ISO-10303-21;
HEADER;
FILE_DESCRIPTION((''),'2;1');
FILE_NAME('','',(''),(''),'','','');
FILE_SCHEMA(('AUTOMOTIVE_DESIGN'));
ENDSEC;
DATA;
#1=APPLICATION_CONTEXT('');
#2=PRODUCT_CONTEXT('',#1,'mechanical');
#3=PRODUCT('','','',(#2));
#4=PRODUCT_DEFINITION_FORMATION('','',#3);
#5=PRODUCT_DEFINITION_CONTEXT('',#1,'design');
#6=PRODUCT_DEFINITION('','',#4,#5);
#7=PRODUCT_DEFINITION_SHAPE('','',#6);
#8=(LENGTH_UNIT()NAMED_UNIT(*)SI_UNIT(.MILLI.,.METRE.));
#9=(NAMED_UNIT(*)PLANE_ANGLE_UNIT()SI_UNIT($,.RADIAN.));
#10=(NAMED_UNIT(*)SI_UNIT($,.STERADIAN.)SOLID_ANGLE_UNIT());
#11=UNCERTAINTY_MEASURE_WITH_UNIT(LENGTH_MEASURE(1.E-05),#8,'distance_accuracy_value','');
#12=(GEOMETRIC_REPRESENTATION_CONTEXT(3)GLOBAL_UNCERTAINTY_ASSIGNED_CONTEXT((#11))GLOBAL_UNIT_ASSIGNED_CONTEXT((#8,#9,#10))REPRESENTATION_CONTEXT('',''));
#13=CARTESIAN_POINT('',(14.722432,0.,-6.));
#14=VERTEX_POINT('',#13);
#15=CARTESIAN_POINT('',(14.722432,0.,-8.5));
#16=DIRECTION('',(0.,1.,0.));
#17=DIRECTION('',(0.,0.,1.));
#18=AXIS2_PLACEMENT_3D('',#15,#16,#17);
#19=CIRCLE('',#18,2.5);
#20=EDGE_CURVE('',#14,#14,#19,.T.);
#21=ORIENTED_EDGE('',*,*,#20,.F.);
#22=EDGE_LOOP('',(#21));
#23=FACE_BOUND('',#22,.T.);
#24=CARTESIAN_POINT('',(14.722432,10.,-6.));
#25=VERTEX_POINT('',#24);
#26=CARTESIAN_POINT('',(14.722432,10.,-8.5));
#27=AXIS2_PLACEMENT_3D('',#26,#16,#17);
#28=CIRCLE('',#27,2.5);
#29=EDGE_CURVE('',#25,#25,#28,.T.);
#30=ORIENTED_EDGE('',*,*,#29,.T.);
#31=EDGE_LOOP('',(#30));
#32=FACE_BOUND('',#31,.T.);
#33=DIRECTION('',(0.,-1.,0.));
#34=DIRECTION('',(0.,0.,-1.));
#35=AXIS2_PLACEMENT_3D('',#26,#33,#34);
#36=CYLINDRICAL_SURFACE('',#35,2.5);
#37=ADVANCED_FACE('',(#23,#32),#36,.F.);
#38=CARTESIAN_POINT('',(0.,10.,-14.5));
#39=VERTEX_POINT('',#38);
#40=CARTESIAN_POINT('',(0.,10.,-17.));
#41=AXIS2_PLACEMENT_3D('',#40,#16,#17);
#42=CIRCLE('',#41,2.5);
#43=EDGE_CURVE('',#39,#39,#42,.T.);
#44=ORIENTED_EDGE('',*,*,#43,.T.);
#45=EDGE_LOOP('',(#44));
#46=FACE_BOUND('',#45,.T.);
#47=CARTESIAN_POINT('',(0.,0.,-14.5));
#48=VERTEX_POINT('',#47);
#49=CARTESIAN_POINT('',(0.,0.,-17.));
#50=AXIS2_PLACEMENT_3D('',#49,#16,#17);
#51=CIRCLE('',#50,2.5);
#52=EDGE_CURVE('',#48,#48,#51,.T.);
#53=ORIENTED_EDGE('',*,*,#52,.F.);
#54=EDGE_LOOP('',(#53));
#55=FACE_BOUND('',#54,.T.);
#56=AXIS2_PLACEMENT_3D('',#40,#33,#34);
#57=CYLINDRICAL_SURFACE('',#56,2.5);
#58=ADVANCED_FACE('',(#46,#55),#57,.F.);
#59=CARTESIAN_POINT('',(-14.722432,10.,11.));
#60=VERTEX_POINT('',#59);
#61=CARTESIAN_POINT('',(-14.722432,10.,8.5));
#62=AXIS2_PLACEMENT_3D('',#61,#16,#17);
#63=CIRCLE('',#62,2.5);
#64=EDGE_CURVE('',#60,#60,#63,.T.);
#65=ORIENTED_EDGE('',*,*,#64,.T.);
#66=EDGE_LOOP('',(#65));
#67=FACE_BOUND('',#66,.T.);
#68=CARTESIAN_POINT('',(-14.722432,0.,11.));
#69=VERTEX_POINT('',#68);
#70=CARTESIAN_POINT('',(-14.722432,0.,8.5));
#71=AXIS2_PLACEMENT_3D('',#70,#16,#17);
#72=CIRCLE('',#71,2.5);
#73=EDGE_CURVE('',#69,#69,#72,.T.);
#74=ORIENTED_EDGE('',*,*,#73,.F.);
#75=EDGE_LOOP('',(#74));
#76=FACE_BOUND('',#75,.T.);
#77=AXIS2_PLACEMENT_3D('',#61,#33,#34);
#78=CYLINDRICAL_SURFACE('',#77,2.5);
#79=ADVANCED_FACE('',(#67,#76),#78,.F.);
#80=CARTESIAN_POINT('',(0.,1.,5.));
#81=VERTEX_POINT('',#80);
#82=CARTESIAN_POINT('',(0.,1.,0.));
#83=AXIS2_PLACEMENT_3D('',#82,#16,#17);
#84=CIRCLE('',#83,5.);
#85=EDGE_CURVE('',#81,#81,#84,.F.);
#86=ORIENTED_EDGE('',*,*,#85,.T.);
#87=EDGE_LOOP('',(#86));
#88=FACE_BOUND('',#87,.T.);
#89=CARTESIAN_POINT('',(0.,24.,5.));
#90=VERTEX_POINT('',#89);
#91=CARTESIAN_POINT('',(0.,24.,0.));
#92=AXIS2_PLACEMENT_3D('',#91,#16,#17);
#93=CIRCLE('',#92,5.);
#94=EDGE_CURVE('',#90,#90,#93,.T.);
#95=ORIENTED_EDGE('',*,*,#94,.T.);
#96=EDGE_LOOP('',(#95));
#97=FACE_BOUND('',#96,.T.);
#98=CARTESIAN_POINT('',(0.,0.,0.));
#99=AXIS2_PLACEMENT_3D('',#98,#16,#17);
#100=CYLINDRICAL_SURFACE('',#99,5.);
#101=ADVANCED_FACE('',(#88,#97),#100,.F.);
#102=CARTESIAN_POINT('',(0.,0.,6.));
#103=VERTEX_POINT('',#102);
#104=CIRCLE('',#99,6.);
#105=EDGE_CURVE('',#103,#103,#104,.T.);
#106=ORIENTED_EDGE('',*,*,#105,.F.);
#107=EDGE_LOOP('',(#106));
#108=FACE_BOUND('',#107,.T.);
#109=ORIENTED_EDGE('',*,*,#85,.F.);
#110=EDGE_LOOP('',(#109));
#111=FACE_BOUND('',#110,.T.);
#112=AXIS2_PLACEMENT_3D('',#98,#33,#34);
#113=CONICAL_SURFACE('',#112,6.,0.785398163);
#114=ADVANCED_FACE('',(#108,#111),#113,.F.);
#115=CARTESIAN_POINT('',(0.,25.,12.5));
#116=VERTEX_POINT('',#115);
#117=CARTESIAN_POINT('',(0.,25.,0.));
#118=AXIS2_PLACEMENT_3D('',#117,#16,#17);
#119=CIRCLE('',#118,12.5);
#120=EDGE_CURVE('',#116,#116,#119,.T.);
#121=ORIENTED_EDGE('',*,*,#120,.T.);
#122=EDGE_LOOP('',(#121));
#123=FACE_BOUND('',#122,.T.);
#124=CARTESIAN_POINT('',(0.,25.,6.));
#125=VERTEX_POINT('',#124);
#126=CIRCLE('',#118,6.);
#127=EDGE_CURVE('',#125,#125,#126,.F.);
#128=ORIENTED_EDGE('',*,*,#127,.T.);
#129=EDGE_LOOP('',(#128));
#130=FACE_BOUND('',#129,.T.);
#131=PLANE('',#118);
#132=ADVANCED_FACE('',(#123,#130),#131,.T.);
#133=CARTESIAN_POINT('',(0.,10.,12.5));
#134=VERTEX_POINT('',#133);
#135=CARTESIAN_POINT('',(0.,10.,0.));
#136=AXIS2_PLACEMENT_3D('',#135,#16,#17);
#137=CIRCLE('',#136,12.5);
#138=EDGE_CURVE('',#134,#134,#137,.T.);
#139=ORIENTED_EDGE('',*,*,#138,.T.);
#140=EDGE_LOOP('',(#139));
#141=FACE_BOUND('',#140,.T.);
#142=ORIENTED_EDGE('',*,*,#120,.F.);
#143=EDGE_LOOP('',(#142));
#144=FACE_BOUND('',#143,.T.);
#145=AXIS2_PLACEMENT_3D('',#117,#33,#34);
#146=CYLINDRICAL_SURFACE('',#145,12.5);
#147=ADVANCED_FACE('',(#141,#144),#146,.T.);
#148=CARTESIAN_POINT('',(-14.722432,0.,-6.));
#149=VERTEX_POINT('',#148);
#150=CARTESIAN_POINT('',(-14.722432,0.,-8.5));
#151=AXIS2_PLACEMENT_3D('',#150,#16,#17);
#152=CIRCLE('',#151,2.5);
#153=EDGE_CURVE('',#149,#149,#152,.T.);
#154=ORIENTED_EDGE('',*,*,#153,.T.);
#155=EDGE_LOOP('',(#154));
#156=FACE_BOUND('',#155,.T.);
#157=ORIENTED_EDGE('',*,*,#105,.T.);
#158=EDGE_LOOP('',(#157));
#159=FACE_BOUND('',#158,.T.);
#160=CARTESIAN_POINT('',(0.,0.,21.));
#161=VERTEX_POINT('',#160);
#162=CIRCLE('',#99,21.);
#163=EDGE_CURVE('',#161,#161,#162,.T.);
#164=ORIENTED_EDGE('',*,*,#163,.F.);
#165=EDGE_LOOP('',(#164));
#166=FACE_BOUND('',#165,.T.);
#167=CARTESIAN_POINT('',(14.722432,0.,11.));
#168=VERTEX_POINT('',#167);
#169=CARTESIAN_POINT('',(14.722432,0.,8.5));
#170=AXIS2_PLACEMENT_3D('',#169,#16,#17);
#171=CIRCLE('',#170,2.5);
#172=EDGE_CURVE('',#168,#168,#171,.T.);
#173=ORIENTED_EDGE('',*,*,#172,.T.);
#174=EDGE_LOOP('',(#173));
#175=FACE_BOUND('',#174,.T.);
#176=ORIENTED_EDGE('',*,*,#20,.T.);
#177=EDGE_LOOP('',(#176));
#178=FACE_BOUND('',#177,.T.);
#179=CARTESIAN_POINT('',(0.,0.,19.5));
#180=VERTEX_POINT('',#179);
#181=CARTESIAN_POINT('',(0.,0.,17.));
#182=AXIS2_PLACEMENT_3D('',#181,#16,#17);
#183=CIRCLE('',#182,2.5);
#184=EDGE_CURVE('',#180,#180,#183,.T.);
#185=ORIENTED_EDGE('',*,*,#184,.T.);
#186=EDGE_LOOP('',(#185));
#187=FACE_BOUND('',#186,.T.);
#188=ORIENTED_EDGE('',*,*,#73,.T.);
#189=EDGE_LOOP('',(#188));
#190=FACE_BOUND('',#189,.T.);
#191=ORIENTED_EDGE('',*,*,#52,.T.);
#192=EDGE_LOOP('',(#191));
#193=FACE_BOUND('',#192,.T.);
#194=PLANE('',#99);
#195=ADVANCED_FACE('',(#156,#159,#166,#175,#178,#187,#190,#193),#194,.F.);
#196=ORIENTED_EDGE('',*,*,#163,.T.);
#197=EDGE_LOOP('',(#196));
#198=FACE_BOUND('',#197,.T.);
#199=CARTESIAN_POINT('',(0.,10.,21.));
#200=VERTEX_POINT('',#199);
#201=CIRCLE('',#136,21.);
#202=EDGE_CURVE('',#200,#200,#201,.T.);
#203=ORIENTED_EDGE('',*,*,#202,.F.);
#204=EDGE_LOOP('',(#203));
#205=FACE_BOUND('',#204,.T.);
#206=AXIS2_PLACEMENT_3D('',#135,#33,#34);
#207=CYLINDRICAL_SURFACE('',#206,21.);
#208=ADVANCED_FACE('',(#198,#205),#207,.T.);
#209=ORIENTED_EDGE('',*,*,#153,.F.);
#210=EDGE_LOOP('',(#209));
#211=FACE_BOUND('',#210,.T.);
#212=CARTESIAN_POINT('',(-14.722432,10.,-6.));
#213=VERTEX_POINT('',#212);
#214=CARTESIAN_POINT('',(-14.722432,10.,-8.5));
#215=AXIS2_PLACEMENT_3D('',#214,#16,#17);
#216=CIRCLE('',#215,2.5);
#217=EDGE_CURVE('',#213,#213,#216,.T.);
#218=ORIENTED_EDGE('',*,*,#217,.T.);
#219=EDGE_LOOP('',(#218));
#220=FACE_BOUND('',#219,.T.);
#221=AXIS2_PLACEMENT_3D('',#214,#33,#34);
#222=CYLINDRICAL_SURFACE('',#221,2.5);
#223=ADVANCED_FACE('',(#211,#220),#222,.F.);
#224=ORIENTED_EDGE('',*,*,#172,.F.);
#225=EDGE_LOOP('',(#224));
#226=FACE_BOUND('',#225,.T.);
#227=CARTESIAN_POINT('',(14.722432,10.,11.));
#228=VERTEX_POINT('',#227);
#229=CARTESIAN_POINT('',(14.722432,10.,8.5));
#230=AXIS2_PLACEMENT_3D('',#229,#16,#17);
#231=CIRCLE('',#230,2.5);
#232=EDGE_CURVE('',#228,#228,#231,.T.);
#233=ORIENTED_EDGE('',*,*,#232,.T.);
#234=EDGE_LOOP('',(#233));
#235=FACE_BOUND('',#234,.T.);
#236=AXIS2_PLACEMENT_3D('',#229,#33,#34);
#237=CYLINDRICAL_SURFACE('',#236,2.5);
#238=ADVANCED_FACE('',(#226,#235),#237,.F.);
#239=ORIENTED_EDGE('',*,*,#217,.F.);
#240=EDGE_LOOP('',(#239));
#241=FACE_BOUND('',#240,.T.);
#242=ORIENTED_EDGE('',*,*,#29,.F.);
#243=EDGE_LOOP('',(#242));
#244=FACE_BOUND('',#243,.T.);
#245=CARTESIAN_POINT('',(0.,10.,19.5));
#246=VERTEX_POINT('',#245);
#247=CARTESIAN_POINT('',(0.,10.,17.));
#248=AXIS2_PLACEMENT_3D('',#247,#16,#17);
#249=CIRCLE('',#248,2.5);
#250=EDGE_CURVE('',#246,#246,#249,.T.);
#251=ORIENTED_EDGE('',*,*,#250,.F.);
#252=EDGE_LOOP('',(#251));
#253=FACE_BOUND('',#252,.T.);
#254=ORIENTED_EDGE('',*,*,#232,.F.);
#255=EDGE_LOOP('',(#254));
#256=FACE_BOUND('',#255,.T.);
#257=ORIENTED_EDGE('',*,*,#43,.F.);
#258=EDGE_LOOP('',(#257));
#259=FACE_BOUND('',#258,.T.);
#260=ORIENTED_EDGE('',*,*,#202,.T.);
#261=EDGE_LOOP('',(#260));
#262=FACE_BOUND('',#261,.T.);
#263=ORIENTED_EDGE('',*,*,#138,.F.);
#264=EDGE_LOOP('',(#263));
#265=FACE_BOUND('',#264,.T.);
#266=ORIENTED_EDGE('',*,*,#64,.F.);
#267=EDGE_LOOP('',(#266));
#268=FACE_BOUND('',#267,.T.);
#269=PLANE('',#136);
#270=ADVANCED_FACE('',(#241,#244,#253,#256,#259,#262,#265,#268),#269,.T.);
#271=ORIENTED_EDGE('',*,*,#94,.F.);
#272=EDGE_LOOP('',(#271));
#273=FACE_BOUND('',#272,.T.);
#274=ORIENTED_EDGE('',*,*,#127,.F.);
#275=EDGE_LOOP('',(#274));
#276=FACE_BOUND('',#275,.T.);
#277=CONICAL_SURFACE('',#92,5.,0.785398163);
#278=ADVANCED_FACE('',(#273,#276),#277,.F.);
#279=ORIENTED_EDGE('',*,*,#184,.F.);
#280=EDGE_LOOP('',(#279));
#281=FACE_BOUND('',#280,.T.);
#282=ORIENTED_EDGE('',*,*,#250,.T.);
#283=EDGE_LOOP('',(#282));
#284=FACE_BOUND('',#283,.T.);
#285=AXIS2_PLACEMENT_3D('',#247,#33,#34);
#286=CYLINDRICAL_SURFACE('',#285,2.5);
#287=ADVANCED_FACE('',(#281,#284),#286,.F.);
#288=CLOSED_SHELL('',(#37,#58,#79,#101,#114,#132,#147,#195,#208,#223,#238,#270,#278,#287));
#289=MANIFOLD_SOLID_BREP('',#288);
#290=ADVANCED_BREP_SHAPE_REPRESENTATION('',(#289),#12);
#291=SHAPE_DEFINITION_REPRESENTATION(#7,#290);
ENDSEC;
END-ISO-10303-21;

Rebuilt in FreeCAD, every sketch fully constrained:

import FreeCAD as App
import Part
import Sketcher

V = App.Vector
Q = App.Units.Quantity


def edges_at(feature, points):
    """Names of the edges that pass closest to the given points."""
    edges = feature.Shape.Edges
    near = lambda p: min(range(len(edges)), key=lambda i: edges[i].distToShape(Part.Vertex(*p))[0])
    return sorted({f"Edge{near(p) + 1}" for p in points})

doc = App.newDocument("Part")
body = doc.addObject("PartDesign::Body", "Body")

sketch1 = body.newObject("Sketcher::SketchObject", "Sketch")
sketch1.AttachmentSupport = (doc.getObject("XZ_Plane"), [""])
sketch1.MapMode = "FlatFace"
sketch1.addGeometry([
    Part.Circle(V(0, 0, 0), V(0, 0, 1), 21),
    Part.Circle(V(-14.7, -8.5, 0), V(0, 0, 1), 2.5),
    Part.Circle(V(0, -17, 0), V(0, 0, 1), 2.5),
    Part.Circle(V(-14.7, 8.5, 0), V(0, 0, 1), 2.5),
    Part.Circle(V(14.7, -8.5, 0), V(0, 0, 1), 2.5),
    Part.Circle(V(0, 17, 0), V(0, 0, 1), 2.5),
    Part.Circle(V(14.7, 8.5, 0), V(0, 0, 1), 2.5),
], False)
sketch1.addConstraint([
    Sketcher.Constraint("Coincident", 0, 3, -1, 1),
    Sketcher.Constraint("Equal", 1, 2),
    Sketcher.Constraint("Equal", 2, 3),
    Sketcher.Constraint("Equal", 3, 4),
    Sketcher.Constraint("Equal", 4, 5),
    Sketcher.Constraint("Equal", 5, 6),
    Sketcher.Constraint("Symmetric", 3, 3, 4, 3, -1, 1),
    Sketcher.Constraint("Symmetric", 2, 3, 5, 3, -1, 1),
    Sketcher.Constraint("Symmetric", 1, 3, 6, 3, -1, 1),
    Sketcher.Constraint("Symmetric", 1, 3, 4, 3, -2),
    Sketcher.Constraint("PointOnObject", 2, 3, -2),
    Sketcher.Constraint("Diameter", 0, Q("42 mm")),
    Sketcher.Constraint("Diameter", 1, Q("5 mm")),
    Sketcher.Constraint("DistanceY", 2, 3, -1, 1, Q("17 mm")),
    Sketcher.Constraint("DistanceY", 1, 3, 3, 3, Q("17 mm")),
    Sketcher.Constraint("DistanceX", 1, 3, -1, 1, Q("14.722432 mm")),
])
pad1 = body.newObject("PartDesign::Pad", "Pad")
pad1.Profile = sketch1
pad1.Length = 10
pad1.Reversed = True

sketch2 = body.newObject("Sketcher::SketchObject", "Sketch001")
sketch2.AttachmentSupport = (doc.getObject("XZ_Plane"), [""])
sketch2.MapMode = "FlatFace"
sketch2.AttachmentOffset = App.Placement(V(0, 0, -10), App.Rotation())
sketch2.addGeometry(Part.Circle(V(0, 0, 0), V(0, 0, 1), 12), False)
sketch2.addConstraint([
    Sketcher.Constraint("Coincident", 0, 3, -1, 1),
    Sketcher.Constraint("Diameter", 0, Q("25 mm")),
])
pad2 = body.newObject("PartDesign::Pad", "Pad001")
pad2.Profile = sketch2
pad2.Length = 15
pad2.Reversed = True

sketch3 = body.newObject("Sketcher::SketchObject", "Sketch002")
sketch3.AttachmentSupport = (doc.getObject("XZ_Plane"), [""])
sketch3.MapMode = "FlatFace"
sketch3.AttachmentOffset = App.Placement(V(0, 0, -25), App.Rotation())
sketch3.addGeometry(Part.Circle(V(0, 0, 0), V(0, 0, 1), 5), False)
sketch3.addConstraint([
    Sketcher.Constraint("Coincident", 0, 3, -1, 1),
    Sketcher.Constraint("Diameter", 0, Q("10 mm")),
])
pocket1 = body.newObject("PartDesign::Pocket", "Pocket")
pocket1.Profile = sketch3
pocket1.Type = "ThroughAll"
pocket1.Reversed = True
doc.recompute()

chamfer = body.newObject("PartDesign::Chamfer", "Chamfer")
chamfer.Base = (pocket1, edges_at(pocket1, [(0, 0, -5), (0, 25, -5)]))
chamfer.Size = 1

doc.recompute()
